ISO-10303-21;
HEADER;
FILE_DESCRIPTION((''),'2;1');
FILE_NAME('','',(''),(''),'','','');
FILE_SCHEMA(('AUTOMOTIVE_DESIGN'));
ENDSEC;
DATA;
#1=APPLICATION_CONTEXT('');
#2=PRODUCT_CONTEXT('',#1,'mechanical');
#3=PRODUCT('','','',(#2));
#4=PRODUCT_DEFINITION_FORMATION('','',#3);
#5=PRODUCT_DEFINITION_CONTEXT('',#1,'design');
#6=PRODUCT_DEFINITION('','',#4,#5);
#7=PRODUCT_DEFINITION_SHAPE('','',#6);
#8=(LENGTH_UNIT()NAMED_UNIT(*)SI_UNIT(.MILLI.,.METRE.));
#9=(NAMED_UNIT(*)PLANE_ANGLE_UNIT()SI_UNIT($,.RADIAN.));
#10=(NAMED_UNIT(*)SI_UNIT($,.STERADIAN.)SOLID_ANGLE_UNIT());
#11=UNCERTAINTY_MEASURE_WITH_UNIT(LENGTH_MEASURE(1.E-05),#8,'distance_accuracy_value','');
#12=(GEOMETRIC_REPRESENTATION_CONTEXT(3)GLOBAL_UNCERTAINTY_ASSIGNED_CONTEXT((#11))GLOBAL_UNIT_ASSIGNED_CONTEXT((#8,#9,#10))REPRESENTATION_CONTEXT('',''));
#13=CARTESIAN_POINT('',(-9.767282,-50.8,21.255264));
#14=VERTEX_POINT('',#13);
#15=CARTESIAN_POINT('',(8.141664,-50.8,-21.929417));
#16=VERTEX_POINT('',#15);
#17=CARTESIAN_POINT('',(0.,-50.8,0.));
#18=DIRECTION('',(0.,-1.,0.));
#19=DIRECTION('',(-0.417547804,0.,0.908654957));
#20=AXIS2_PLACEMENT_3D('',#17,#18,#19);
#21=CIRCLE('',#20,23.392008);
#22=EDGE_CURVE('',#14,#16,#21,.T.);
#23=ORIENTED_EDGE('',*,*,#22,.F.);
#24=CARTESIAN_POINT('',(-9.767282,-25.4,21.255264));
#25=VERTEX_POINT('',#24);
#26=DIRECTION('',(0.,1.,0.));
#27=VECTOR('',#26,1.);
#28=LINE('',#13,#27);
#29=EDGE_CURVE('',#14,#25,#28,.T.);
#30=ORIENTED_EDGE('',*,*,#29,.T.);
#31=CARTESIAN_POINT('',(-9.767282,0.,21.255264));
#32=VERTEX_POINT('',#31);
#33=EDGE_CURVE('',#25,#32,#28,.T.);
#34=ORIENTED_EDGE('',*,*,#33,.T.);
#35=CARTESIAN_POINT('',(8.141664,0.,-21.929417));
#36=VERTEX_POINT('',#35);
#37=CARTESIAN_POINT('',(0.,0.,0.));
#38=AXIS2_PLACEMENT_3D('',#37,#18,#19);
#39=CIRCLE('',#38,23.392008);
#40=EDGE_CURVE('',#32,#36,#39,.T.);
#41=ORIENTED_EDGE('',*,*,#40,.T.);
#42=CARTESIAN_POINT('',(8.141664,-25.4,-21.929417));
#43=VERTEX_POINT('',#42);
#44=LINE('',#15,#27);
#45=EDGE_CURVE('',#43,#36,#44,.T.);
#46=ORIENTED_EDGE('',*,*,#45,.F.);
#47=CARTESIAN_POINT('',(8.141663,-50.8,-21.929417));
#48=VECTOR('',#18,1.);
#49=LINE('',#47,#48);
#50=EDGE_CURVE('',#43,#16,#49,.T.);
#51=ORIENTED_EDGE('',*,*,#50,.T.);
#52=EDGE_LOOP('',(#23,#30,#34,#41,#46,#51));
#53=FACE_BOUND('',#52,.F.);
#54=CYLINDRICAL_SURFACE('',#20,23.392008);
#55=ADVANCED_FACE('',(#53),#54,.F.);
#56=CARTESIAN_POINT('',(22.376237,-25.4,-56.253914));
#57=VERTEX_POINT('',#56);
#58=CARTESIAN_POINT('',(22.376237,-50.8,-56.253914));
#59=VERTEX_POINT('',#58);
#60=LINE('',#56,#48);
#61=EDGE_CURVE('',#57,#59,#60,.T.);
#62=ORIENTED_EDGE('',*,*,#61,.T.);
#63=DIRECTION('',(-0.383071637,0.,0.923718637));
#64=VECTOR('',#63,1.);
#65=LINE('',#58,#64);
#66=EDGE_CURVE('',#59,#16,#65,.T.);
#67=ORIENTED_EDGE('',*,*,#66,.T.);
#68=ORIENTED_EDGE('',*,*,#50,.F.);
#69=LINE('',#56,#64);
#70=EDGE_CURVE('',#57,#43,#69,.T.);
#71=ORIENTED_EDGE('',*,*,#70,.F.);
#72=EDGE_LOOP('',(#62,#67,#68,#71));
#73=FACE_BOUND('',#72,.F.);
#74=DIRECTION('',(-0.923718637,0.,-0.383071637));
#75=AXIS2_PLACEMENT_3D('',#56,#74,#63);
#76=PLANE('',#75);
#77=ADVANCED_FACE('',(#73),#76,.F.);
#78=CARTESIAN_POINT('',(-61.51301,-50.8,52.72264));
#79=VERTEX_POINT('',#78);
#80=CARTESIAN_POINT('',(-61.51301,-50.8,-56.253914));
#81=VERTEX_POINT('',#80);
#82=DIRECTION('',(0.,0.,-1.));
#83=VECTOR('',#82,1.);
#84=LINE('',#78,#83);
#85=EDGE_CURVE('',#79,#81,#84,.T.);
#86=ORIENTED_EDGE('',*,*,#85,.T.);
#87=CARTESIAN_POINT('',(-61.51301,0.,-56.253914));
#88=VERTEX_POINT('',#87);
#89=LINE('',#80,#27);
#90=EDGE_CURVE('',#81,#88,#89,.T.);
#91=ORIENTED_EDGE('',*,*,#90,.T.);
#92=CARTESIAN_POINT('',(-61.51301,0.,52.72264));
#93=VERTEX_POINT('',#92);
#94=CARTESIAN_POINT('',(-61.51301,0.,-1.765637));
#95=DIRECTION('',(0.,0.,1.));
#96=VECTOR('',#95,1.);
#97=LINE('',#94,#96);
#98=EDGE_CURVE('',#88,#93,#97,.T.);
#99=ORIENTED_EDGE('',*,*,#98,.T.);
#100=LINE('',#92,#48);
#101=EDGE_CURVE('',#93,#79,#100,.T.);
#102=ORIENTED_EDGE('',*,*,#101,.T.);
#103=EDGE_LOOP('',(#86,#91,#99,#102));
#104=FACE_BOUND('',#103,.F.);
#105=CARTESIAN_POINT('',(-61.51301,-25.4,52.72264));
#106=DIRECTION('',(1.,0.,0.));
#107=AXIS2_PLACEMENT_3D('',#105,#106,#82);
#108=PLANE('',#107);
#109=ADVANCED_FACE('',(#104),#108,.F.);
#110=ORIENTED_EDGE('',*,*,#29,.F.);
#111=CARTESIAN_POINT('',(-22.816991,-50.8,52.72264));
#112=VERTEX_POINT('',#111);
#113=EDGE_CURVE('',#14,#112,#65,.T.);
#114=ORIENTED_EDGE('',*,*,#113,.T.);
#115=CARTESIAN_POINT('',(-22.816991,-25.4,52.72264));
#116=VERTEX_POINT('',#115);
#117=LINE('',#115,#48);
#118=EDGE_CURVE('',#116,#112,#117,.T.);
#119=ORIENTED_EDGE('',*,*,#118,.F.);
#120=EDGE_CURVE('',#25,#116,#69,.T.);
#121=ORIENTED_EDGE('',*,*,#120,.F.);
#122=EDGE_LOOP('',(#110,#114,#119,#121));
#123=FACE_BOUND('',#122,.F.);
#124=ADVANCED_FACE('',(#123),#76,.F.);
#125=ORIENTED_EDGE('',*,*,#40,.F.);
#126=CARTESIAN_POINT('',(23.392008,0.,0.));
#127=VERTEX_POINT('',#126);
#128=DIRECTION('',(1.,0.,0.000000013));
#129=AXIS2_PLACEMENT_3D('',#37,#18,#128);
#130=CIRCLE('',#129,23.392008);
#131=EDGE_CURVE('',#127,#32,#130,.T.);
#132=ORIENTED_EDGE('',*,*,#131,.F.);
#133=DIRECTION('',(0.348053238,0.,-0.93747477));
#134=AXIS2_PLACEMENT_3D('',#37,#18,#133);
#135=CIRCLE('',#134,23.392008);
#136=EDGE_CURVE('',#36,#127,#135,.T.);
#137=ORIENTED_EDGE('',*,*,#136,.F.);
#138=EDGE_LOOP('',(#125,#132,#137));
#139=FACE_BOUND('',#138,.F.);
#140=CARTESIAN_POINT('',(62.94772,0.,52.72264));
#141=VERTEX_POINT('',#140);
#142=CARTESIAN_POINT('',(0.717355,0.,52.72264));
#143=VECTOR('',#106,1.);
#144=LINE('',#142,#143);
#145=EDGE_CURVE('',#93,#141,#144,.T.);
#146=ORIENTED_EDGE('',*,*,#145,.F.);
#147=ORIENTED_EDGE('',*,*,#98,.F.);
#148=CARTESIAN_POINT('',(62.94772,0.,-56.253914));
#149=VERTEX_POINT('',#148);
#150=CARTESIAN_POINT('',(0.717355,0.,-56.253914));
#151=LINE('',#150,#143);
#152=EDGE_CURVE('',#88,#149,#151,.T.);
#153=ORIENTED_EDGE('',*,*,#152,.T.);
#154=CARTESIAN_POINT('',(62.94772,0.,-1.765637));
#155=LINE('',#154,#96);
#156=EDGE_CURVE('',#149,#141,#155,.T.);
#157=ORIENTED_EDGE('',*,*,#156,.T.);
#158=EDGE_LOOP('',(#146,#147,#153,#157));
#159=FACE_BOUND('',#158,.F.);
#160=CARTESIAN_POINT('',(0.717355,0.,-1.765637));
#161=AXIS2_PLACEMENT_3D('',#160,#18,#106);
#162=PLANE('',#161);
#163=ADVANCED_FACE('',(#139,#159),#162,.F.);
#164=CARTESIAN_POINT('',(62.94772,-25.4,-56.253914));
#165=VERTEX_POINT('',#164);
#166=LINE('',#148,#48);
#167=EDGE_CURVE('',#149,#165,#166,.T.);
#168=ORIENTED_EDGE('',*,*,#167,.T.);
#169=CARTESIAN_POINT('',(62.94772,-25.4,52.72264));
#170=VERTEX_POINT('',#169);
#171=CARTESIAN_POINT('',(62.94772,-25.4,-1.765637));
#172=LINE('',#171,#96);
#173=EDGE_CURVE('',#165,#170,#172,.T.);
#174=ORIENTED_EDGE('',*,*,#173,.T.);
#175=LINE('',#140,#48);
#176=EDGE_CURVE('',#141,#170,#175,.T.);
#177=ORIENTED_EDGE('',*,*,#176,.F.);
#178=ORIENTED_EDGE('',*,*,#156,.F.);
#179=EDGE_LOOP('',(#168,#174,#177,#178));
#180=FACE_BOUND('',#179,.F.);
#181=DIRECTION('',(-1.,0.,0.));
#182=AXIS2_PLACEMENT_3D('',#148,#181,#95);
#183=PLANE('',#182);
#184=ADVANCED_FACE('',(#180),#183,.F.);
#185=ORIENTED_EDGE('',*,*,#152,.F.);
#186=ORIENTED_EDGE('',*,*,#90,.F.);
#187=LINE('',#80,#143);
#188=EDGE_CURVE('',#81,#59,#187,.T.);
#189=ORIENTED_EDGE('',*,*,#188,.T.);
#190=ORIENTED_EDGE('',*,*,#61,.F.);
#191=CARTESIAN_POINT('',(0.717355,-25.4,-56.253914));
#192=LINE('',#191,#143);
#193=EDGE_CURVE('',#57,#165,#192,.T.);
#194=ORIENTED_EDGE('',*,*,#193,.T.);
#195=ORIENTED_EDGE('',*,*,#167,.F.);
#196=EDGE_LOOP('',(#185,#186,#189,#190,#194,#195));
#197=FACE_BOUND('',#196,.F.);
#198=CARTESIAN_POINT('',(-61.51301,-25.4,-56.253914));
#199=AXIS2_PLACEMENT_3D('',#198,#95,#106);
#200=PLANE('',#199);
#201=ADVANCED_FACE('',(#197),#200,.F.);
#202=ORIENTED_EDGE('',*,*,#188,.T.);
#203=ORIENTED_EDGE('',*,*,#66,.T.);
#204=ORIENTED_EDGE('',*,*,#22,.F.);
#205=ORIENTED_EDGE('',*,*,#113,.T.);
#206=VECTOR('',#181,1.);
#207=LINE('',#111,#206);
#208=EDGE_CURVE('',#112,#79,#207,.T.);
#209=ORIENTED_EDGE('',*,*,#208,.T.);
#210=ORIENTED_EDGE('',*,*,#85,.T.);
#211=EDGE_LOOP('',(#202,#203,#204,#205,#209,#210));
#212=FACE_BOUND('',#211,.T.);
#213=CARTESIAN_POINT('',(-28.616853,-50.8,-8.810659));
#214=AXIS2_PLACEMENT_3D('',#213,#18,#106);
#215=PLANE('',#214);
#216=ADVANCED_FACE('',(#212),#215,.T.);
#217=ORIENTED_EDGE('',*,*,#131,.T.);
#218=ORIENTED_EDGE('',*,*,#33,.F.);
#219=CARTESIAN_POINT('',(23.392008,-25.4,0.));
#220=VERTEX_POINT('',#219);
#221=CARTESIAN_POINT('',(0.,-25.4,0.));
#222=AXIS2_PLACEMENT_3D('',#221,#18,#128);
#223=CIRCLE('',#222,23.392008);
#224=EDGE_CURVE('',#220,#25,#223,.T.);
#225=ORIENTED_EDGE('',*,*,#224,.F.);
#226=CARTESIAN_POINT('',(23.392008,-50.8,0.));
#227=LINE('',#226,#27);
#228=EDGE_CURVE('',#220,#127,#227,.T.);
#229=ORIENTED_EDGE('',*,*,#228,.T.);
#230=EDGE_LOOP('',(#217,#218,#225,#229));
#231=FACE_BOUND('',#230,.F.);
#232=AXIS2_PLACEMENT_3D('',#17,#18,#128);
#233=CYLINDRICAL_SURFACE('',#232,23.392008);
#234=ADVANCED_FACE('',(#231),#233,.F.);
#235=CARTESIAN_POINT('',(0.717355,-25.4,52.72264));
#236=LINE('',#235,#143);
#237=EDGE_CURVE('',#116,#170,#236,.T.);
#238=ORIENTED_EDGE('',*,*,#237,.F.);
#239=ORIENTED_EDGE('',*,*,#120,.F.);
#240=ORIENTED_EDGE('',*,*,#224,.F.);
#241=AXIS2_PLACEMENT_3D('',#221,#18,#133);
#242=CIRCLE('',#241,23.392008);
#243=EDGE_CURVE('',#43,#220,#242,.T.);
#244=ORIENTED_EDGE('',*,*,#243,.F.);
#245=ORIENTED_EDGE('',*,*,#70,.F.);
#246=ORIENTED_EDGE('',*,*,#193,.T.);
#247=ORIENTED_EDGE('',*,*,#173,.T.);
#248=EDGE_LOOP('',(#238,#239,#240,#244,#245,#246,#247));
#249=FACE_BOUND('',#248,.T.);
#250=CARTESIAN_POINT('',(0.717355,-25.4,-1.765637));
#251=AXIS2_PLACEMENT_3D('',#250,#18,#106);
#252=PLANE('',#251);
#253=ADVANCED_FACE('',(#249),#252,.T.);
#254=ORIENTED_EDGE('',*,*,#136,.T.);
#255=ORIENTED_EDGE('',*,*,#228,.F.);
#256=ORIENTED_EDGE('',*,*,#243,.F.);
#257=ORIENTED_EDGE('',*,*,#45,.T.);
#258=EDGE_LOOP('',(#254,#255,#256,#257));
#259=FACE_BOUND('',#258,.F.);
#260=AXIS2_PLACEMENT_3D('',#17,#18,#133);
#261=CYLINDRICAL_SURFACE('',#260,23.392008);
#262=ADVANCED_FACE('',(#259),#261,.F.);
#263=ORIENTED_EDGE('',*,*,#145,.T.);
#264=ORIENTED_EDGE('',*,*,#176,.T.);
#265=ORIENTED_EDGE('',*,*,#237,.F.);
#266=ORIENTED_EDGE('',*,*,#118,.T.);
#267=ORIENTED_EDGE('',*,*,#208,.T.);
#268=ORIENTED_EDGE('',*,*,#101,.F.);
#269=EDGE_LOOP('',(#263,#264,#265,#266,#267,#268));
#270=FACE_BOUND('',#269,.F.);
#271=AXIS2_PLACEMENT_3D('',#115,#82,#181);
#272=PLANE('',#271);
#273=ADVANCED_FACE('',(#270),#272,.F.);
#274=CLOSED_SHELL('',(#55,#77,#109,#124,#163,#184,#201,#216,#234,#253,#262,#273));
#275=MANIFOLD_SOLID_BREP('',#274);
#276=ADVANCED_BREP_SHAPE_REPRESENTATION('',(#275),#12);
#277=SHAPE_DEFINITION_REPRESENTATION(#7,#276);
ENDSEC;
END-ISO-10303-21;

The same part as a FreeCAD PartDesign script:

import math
import FreeCAD as App
import Part
import Sketcher
from FreeCAD import Vector
Q = App.Units.Quantity


def add_polygon(sketch, points):
    """Adds a closed chain of lines whose ends are joined by coincident constraints."""
    first, n = sketch.GeometryCount, len(points)
    for a, b in zip(points, points[1:] + points[:1]):
        sketch.addGeometry(Part.LineSegment(App.Vector(*a, 0), App.Vector(*b, 0)), False)
    for i in range(n):
        sketch.addConstraint(Sketcher.Constraint("Coincident", first + i, 2, first + (i + 1) % n, 1))

doc = App.newDocument("Part")
body = doc.addObject("PartDesign::Body", "Body")

sketch1 = body.newObject("Sketcher::SketchObject", "Sketch")
sketch1.AttachmentSupport = (doc.getObject("XZ_Plane"), [""])
sketch1.MapMode = "FlatFace"
add_polygon(sketch1, [(-62, 53), (-62, -56), (63, -56), (63, 53)])
sketch1.addConstraint(Sketcher.Constraint("Vertical", 0))
sketch1.addConstraint(Sketcher.Constraint("Horizontal", 1))
sketch1.addConstraint(Sketcher.Constraint("Vertical", 2))
sketch1.addConstraint(Sketcher.Constraint("Horizontal", 3))
sketch1.addConstraint(Sketcher.Constraint("DistanceX", 1, 1, 1, 2, 124.46073))
sketch1.addConstraint(Sketcher.Constraint("DistanceY", 0, 2, 0, 1, 108.976554))
sketch1.addConstraint(Sketcher.Constraint("DistanceX", 0, 2, -1, 1, 61.51301))
sketch1.addConstraint(Sketcher.Constraint("DistanceY", -1, 1, 2, 2, 52.72264))
pad1 = body.newObject("PartDesign::Pad", "Pad")
pad1.Profile = sketch1
pad1.Length = Q("1 in")

sketch2 = body.newObject("Sketcher::SketchObject", "Sketch001")
sketch2.AttachmentSupport = (doc.getObject("XZ_Plane"), [""])
sketch2.MapMode = "FlatFace"
sketch2.AttachmentOffset = App.Placement(Vector(0, 0, 1 * 25.4), App.Rotation())
add_polygon(sketch2, [(22, -56), (-23, 53), (-62, 53), (-62, -56)])
sketch2.addConstraint(Sketcher.Constraint("Horizontal", 1))
sketch2.addConstraint(Sketcher.Constraint("Vertical", 2))
sketch2.addConstraint(Sketcher.Constraint("Horizontal", 3))
sketch2.addConstraint(Sketcher.Constraint("DistanceX", 1, 2, 1, 1, 38.696019))
sketch2.addConstraint(Sketcher.Constraint("DistanceX", 3, 1, 3, 2, 83.889247))
sketch2.addConstraint(Sketcher.Constraint("DistanceY", 2, 2, 2, 1, 108.976554))
sketch2.addConstraint(Sketcher.Constraint("DistanceX", 0, 2, -1, 1, 22.816991))
sketch2.addConstraint(Sketcher.Constraint("DistanceY", -1, 1, 0, 2, 52.72264))
pad2 = body.newObject("PartDesign::Pad", "Pad001")
pad2.Profile = sketch2
pad2.Length = Q("1 in")

sketch3 = body.newObject("Sketcher::SketchObject", "Sketch002")
sketch3.AttachmentSupport = (doc.getObject("XZ_Plane"), [""])
sketch3.MapMode = "FlatFace"
sketch3.AttachmentOffset = App.Placement(Vector(0, 0, 2 * 25.4), App.Rotation())
sketch3.addGeometry(Part.ArcOfCircle(Part.Circle(Vector(0, 0, 0), Vector(0, 0, 1), 23), math.radians(-70), math.radians(0)), False)
sketch3.addGeometry(Part.ArcOfCircle(Part.Circle(Vector(0, 0, 0), Vector(0, 0, 1), 23), math.radians(0), math.radians(115)), False)
sketch3.addGeometry(Part.ArcOfCircle(Part.Circle(Vector(0, 0, 0), Vector(0, 0, 1), 23), math.radians(115), math.radians(290)), False)
sketch3.addConstraint(Sketcher.Constraint("Tangent", 0, 2, 1, 1))
sketch3.addConstraint(Sketcher.Constraint("Tangent", 1, 2, 2, 1))
sketch3.addConstraint(Sketcher.Constraint("Tangent", 2, 2, 0, 1))
sketch3.addConstraint(Sketcher.Constraint("Coincident", 0, 3, -1, 1))
sketch3.addConstraint(Sketcher.Constraint("PointOnObject", 0, 2, -1))
sketch3.addConstraint(Sketcher.Constraint("Radius", 0, 23.392008))
sketch3.addConstraint(Sketcher.Constraint("DistanceX", 1, 2, 0, 3, 9.767282))
sketch3.addConstraint(Sketcher.Constraint("DistanceY", 2, 2, 1, 2, 43.184681))
pocket1 = body.newObject("PartDesign::Pocket", "Pocket")
pocket1.Profile = sketch3
pocket1.Type = "ThroughAll"

doc.recompute()
